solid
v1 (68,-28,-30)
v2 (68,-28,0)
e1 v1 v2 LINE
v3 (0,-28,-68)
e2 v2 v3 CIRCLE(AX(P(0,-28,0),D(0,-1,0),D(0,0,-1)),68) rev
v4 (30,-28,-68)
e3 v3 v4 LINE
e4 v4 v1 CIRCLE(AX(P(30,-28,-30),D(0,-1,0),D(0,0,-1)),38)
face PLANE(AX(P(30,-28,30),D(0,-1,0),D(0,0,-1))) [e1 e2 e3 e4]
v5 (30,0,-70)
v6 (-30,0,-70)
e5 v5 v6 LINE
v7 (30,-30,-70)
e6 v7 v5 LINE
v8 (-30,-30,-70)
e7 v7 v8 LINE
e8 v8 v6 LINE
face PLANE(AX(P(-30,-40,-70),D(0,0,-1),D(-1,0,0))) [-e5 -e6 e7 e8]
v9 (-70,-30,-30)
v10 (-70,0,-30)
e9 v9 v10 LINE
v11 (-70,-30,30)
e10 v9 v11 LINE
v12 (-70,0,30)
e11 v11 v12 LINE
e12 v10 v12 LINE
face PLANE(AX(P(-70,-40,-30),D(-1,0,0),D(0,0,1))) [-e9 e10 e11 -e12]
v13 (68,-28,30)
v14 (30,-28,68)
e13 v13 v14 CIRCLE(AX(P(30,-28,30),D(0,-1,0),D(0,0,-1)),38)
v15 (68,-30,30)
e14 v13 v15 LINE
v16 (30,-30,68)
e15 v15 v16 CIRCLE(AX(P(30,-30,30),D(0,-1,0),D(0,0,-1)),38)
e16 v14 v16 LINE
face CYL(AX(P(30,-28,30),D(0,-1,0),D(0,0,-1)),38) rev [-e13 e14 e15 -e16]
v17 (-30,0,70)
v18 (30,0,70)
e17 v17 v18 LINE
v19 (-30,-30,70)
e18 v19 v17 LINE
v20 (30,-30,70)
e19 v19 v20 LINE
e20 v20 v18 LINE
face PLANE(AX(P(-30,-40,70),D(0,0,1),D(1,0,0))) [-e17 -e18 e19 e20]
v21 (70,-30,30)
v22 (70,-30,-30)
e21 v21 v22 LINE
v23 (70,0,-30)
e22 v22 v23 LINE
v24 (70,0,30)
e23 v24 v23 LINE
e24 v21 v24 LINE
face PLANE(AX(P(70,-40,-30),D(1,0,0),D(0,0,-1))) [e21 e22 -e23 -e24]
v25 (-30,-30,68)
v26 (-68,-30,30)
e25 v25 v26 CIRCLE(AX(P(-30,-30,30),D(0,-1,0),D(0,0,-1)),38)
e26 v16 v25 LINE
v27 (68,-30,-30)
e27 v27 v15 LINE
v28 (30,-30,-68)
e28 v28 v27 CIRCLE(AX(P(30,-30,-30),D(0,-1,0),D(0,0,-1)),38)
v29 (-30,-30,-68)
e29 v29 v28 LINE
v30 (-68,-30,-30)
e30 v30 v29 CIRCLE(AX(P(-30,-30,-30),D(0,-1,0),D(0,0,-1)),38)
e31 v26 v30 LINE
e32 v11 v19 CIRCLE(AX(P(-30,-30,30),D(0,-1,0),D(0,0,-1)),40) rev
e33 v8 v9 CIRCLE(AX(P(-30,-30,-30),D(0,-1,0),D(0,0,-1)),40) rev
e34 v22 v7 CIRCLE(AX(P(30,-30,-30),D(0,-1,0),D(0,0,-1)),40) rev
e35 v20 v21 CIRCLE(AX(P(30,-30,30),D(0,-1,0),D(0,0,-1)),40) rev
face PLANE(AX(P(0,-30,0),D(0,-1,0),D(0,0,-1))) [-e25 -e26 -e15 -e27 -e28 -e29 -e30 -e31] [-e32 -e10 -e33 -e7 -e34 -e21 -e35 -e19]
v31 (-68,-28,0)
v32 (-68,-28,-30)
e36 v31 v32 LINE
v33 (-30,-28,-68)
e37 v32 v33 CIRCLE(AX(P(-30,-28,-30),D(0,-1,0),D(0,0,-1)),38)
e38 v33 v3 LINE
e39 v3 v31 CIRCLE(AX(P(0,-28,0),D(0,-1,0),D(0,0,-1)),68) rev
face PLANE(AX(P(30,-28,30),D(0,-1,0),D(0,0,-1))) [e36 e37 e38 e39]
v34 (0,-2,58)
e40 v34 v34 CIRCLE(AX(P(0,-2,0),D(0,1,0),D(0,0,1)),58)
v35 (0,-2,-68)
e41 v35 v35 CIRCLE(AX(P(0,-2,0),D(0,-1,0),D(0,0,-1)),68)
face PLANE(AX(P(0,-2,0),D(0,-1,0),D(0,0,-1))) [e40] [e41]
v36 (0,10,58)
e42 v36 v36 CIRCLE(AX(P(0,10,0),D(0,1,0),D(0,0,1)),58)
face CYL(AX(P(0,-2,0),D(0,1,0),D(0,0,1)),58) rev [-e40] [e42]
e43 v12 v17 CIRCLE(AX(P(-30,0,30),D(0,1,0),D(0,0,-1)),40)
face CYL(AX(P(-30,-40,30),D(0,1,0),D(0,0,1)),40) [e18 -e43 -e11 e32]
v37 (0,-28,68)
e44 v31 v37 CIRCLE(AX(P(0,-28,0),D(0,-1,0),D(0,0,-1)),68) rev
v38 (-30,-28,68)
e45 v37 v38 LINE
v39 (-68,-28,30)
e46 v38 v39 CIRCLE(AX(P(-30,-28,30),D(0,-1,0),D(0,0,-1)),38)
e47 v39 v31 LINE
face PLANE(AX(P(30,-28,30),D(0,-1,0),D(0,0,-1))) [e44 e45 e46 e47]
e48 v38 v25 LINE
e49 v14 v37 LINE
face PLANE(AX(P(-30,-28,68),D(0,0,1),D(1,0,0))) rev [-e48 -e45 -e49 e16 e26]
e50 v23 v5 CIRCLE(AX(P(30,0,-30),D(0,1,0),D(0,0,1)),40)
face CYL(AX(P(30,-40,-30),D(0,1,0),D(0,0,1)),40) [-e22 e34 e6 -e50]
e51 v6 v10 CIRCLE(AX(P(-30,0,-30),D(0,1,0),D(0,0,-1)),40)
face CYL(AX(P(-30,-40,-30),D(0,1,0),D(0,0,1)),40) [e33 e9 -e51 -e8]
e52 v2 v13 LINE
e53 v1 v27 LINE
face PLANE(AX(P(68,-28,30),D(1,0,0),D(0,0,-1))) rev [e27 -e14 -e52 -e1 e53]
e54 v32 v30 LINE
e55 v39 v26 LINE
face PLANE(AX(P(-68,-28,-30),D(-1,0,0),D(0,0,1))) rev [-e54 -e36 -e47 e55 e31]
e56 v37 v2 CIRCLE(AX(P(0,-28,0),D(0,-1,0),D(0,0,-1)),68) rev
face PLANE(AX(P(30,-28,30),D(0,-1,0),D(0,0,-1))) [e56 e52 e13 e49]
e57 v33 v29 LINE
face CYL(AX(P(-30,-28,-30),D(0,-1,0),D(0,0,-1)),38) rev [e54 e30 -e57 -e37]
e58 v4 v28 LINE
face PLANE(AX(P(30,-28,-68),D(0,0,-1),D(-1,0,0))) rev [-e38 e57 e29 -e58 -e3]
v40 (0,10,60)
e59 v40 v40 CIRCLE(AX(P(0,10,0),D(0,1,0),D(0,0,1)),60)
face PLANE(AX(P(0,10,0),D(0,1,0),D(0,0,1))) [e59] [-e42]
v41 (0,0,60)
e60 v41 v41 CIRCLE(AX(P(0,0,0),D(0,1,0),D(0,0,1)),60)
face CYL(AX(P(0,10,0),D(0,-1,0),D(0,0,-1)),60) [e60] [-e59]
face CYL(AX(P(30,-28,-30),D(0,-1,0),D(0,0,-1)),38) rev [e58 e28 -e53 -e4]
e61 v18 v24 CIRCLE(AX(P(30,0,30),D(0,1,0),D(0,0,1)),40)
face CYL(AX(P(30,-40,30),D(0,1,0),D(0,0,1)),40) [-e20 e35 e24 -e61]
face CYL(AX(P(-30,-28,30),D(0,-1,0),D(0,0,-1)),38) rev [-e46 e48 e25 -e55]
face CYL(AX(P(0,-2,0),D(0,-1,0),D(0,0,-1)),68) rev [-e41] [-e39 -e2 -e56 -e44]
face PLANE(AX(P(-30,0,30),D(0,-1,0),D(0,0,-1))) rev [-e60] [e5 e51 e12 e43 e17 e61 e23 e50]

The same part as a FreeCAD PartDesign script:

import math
import FreeCAD as App
import Part
import Sketcher

V = App.Vector
Q = App.Units.Quantity

doc = App.newDocument("Part")
body = doc.addObject("PartDesign::Body", "Body")

# Sketch on XZ plane
sketch1 = body.newObject("Sketcher::SketchObject", "Sketch")
sketch1.AttachmentSupport = (doc.getObject("XZ_Plane"), [""])
sketch1.MapMode = "FlatFace"
sketch1.addGeometry([
    Part.LineSegment(V(30, -70, 0), V(-30, -70, 0)),  # 0
    Part.ArcOfCircle(Part.Circle(V(-30, -30, 0), V(0, 0, 1), 40), math.radians(-180), math.radians(-90)),  # 1
    Part.LineSegment(V(-70, -30, 0), V(-70, 30, 0)),  # 2
    Part.ArcOfCircle(Part.Circle(V(-30, 30, 0), V(0, 0, 1), 40), math.radians(90), math.radians(180)),  # 3
    Part.LineSegment(V(-30, 70, 0), V(30, 70, 0)),  # 4
    Part.ArcOfCircle(Part.Circle(V(30, 30, 0), V(0, 0, 1), 40), math.radians(0), math.radians(90)),  # 5
    Part.LineSegment(V(70, 30, 0), V(70, -30, 0)),  # 6
    Part.ArcOfCircle(Part.Circle(V(30, -30, 0), V(0, 0, 1), 40), math.radians(-90), math.radians(0)),  # 7
], False)
sketch1.addConstraint([
    Sketcher.Constraint("Tangent", 0, 2, 1, 2),
    Sketcher.Constraint("Tangent", 1, 1, 2, 1),
    Sketcher.Constraint("Tangent", 2, 2, 3, 2),
    Sketcher.Constraint("Tangent", 3, 1, 4, 1),
    Sketcher.Constraint("Tangent", 4, 2, 5, 2),
    Sketcher.Constraint("Tangent", 5, 1, 6, 1),
    Sketcher.Constraint("Tangent", 6, 2, 7, 2),
    Sketcher.Constraint("Tangent", 7, 1, 0, 1),
    Sketcher.Constraint("Horizontal", 0),
    Sketcher.Constraint("Vertical", 2),
    Sketcher.Constraint("Horizontal", 4),
    Sketcher.Constraint("Vertical", 6),
    Sketcher.Constraint("Equal", 1, 3),
    Sketcher.Constraint("Equal", 3, 5),
    Sketcher.Constraint("Equal", 5, 7),
    Sketcher.Constraint("Symmetric", 1, 3, 5, 3, -1, 1),
    Sketcher.Constraint("Equal", 4, 2),
    Sketcher.Constraint("Radius", 1, Q("40 mm")),
    Sketcher.Constraint("DistanceX", 0, 2, 0, 1, Q("60 mm")),
])
pad1 = body.newObject("PartDesign::Pad", "Pad")
pad1.Profile = sketch1
pad1.Length = 40

# Sketch on XZ plane
sketch2 = body.newObject("Sketcher::SketchObject", "Sketch001")
sketch2.AttachmentSupport = (doc.getObject("XZ_Plane"), [""])
sketch2.MapMode = "FlatFace"
sketch2.addGeometry(Part.Circle(V(0, 0, 0), V(0, 0, 1), 60), False)
sketch2.addConstraint([
    Sketcher.Constraint("Coincident", 0, 3, -1, 1),
    Sketcher.Constraint("Diameter", 0, Q("120 mm")),
])
pad2 = body.newObject("PartDesign::Pad", "Pad001")
pad2.Profile = sketch2
pad2.Length = 10
pad2.Reversed = True

# Sketch on XZ plane
sketch3 = body.newObject("Sketcher::SketchObject", "Sketch002")
sketch3.AttachmentSupport = (doc.getObject("XZ_Plane"), [""])
sketch3.MapMode = "FlatFace"
sketch3.AttachmentOffset = App.Placement(V(0, 0, -10), App.Rotation())
sketch3.addGeometry(Part.Circle(V(0, 0, 0), V(0, 0, 1), 58), False)
sketch3.addConstraint([
    Sketcher.Constraint("Coincident", 0, 3, -1, 1),
    Sketcher.Constraint("Diameter", 0, Q("116 mm")),
])
pocket1 = body.newObject("PartDesign::Pocket", "Pocket")
pocket1.Profile = sketch3
pocket1.Length = 12
pocket1.Reversed = True

# Sketch on XZ plane
sketch4 = body.newObject("Sketcher::SketchObject", "Sketch003")
sketch4.AttachmentSupport = (doc.getObject("XZ_Plane"), [""])
sketch4.MapMode = "FlatFace"
sketch4.AttachmentOffset = App.Placement(V(0, 0, 40), App.Rotation())
sketch4.addGeometry(Part.Circle(V(0, 0, 0), V(0, 0, 1), 68), False)
sketch4.addConstraint([
    Sketcher.Constraint("Coincident", 0, 3, -1, 1),
    Sketcher.Constraint("Diameter", 0, Q("136 mm")),
])
pocket2 = body.newObject("PartDesign::Pocket", "Pocket001")
pocket2.Profile = sketch4
pocket2.Length = 38

# Sketch on XZ plane
sketch5 = body.newObject("Sketcher::SketchObject", "Sketch004")
sketch5.AttachmentSupport = (doc.getObject("XZ_Plane"), [""])
sketch5.MapMode = "FlatFace"
sketch5.AttachmentOffset = App.Placement(V(0, 0, 40), App.Rotation())
sketch5.addGeometry([
    Part.LineSegment(V(-77, 71, 0), V(-77, -74, 0)),
    Part.LineSegment(V(-77, -74, 0), V(76, -74, 0)),
    Part.LineSegment(V(76, -74, 0), V(76, 71, 0)),
    Part.LineSegment(V(76, 71, 0), V(-77, 71, 0)),
], False)
sketch5.addConstraint([
    Sketcher.Constraint("Coincident", 0, 2, 1, 1),
    Sketcher.Constraint("Coincident", 1, 2, 2, 1),
    Sketcher.Constraint("Coincident", 2, 2, 3, 1),
    Sketcher.Constraint("Coincident", 3, 2, 0, 1),
    Sketcher.Constraint("Vertical", 0),
    Sketcher.Constraint("Horizontal", 1),
    Sketcher.Constraint("Vertical", 2),
    Sketcher.Constraint("Horizontal", 3),
    Sketcher.Constraint("DistanceX", 1, 1, 1, 2, Q("152.426139 mm")),
    Sketcher.Constraint("DistanceY", 0, 2, 0, 1, Q("144.71697 mm")),
    Sketcher.Constraint("DistanceX", 0, 2, -1, 1, Q("76.700632 mm")),
    Sketcher.Constraint("DistanceY", 0, 2, -1, 1, Q("73.724163 mm")),
])
pocket3 = body.newObject("PartDesign::Pocket", "Pocket002")
pocket3.Profile = sketch5
pocket3.Length = 10

# Sketch on XZ plane
sketch6 = body.newObject("Sketcher::SketchObject", "Sketch005")
sketch6.AttachmentSupport = (doc.getObject("XZ_Plane"), [""])
sketch6.MapMode = "FlatFace"
sketch6.AttachmentOffset = App.Placement(V(0, 0, 30), App.Rotation())
sketch6.addGeometry([
    Part.LineSegment(V(68, -30, 0), V(68, 30, 0)),  # 0
    Part.ArcOfCircle(Part.Circle(V(30, 30, 0), V(0, 0, 1), 38), math.radians(0), math.radians(90)),  # 1
    Part.LineSegment(V(30, 68, 0), V(-30, 68, 0)),  # 2
    Part.ArcOfCircle(Part.Circle(V(-30, 30, 0), V(0, 0, 1), 38), math.radians(90), math.radians(180)),  # 3
    Part.LineSegment(V(-68, 30, 0), V(-68, -30, 0)),  # 4
    Part.ArcOfCircle(Part.Circle(V(-30, -30, 0), V(0, 0, 1), 38), math.radians(180), math.radians(270)),  # 5
    Part.LineSegment(V(-30, -68, 0), V(30, -68, 0)),  # 6
    Part.ArcOfCircle(Part.Circle(V(30, -30, 0), V(0, 0, 1), 38), math.radians(-90), math.radians(0)),  # 7
], False)
sketch6.addConstraint([
    Sketcher.Constraint("Tangent", 0, 2, 1, 1),
    Sketcher.Constraint("Tangent", 1, 2, 2, 1),
    Sketcher.Constraint("Tangent", 2, 2, 3, 1),
    Sketcher.Constraint("Tangent", 3, 2, 4, 1),
    Sketcher.Constraint("Tangent", 4, 2, 5, 1),
    Sketcher.Constraint("Tangent", 5, 2, 6, 1),
    Sketcher.Constraint("Tangent", 6, 2, 7, 1),
    Sketcher.Constraint("Tangent", 7, 2, 0, 1),
    Sketcher.Constraint("Vertical", 0),
    Sketcher.Constraint("Horizontal", 2),
    Sketcher.Constraint("Vertical", 4),
    Sketcher.Constraint("Horizontal", 6),
    Sketcher.Constraint("Equal", 1, 3),
    Sketcher.Constraint("Equal", 3, 5),
    Sketcher.Constraint("Equal", 5, 7),
    Sketcher.Constraint("Symmetric", 1, 3, 5, 3, -1, 1),
    Sketcher.Constraint("Equal", 6, 0),
    Sketcher.Constraint("Radius", 1, Q("38 mm")),
    Sketcher.Constraint("DistanceX", 2, 2, 2, 1, Q("60 mm")),
])
pocket4 = body.newObject("PartDesign::Pocket", "Pocket003")
pocket4.Profile = sketch6
pocket4.Length = 2

doc.recompute()
